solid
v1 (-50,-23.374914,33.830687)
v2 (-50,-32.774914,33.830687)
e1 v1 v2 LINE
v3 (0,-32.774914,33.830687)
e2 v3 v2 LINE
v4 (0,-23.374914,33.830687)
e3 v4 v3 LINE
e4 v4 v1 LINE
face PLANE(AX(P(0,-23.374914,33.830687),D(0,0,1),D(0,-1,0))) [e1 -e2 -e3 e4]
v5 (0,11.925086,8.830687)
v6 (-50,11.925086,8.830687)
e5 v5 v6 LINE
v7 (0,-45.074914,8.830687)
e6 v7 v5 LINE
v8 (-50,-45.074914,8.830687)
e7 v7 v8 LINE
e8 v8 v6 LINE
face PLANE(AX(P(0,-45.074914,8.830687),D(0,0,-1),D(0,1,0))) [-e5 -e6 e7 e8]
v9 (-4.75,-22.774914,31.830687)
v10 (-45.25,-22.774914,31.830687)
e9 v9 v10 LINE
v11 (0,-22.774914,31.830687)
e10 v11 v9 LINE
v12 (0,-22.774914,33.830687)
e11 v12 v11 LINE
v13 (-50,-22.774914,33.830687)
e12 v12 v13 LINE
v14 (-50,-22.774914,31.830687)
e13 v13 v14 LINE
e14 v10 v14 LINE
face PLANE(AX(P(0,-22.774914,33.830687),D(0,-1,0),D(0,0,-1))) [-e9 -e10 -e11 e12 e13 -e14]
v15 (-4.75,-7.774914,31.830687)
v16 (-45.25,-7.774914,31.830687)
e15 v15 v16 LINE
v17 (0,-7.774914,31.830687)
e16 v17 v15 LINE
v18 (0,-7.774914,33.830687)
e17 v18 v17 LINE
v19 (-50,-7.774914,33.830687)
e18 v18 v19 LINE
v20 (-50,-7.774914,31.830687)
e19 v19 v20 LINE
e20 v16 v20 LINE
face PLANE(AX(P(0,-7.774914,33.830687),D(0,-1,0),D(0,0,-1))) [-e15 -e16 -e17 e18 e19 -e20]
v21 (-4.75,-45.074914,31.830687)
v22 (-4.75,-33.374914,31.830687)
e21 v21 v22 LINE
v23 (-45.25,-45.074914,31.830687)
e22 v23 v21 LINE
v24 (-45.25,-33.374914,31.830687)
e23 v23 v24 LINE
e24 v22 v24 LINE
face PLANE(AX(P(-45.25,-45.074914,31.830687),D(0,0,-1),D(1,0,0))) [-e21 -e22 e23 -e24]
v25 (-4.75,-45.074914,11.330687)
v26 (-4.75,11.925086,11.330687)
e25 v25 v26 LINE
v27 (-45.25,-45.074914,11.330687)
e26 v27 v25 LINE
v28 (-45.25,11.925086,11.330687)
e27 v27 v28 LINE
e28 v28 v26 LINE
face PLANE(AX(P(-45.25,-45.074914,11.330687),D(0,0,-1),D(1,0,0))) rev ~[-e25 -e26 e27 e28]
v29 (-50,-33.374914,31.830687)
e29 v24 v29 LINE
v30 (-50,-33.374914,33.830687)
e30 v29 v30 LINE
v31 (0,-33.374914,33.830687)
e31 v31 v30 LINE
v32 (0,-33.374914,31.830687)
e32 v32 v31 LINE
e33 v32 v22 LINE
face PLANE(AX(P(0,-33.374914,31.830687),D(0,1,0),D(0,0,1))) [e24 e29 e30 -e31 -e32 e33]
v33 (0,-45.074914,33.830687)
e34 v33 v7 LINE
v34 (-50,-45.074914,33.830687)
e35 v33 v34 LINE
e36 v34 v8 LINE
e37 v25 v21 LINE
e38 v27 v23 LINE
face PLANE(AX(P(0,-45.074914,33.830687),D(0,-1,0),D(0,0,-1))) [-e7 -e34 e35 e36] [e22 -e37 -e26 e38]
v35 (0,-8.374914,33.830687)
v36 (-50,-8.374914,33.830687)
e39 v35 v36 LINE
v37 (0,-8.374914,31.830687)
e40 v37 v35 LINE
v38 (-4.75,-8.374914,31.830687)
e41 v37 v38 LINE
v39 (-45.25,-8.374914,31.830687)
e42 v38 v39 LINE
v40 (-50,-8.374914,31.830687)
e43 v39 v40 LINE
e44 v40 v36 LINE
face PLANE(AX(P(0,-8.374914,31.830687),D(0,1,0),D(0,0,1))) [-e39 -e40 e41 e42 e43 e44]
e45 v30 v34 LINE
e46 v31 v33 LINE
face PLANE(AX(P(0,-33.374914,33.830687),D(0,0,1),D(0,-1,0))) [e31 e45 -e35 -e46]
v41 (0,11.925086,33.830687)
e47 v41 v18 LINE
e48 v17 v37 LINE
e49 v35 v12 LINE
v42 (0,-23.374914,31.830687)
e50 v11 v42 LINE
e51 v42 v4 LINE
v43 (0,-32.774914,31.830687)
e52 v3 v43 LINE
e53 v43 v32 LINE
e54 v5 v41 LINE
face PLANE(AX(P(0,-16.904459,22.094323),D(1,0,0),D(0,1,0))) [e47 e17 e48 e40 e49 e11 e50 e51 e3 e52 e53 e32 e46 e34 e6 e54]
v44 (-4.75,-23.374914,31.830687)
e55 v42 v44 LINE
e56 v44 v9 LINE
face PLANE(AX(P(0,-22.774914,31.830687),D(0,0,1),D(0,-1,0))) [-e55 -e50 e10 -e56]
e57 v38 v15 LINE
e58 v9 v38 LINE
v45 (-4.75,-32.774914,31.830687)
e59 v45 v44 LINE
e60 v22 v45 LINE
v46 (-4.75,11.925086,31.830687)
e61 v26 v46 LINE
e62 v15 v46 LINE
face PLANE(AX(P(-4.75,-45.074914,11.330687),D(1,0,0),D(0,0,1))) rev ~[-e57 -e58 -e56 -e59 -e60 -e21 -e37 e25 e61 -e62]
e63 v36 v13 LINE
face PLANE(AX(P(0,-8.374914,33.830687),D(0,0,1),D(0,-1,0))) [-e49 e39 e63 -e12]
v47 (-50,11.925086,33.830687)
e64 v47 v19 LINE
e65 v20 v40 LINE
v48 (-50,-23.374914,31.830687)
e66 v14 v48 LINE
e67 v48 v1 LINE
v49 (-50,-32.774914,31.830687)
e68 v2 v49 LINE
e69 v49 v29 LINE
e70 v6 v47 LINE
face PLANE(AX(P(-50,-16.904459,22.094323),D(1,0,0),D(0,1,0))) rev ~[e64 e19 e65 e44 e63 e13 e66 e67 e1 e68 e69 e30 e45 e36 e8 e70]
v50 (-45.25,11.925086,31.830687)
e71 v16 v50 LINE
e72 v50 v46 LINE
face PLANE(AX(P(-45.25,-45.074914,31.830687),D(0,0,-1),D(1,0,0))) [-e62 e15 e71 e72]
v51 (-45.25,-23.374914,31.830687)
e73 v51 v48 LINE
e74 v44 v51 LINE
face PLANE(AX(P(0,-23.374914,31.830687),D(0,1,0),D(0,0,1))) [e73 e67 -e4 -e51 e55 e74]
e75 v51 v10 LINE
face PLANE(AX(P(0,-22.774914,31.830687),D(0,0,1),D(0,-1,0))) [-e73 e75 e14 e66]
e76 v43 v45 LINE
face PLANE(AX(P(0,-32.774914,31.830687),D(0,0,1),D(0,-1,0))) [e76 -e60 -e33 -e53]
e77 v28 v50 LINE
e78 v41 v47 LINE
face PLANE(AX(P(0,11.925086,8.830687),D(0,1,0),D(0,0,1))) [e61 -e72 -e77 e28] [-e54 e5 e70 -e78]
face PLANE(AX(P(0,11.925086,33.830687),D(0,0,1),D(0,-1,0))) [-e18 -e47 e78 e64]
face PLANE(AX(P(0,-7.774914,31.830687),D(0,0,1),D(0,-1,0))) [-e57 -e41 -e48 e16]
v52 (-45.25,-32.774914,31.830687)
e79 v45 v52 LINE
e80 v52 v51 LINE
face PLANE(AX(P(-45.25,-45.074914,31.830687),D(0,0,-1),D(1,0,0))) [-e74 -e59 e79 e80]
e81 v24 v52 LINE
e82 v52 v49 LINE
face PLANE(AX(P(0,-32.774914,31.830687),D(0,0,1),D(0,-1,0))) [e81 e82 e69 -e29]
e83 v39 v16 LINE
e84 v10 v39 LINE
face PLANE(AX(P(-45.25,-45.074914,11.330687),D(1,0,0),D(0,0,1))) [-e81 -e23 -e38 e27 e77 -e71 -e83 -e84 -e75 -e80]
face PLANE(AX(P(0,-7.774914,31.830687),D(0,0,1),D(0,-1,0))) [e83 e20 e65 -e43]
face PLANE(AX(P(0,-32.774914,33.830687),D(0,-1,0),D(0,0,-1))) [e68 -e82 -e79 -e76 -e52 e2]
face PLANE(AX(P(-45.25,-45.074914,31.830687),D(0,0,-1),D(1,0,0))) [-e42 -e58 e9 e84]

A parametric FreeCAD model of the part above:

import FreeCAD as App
import Part
import Sketcher

doc = App.newDocument("Part")
body = doc.addObject("PartDesign::Body", "Body")

sketch1 = doc.addObject("Sketcher::SketchObject", "Sketch")
body.addObject(sketch1)
sketch1.AttachmentSupport = (doc.YZ_Plane, [""])
sketch1.MapMode = "FlatFace"
sketch1.addGeometry([
    Part.LineSegment(App.Vector(-33.4, 31.8, 0), App.Vector(-33.4, 33.8, 0)),
    Part.LineSegment(App.Vector(-33.4, 33.8, 0), App.Vector(-45.1, 33.8, 0)),
    Part.LineSegment(App.Vector(-45.1, 33.8, 0), App.Vector(-45.1, 8.8, 0)),
    Part.LineSegment(App.Vector(-45.1, 8.8, 0), App.Vector(11.9, 8.8, 0)),
    Part.LineSegment(App.Vector(11.9, 8.8, 0), App.Vector(11.9, 33.8, 0)),
    Part.LineSegment(App.Vector(11.9, 33.8, 0), App.Vector(-7.8, 33.8, 0)),
    Part.LineSegment(App.Vector(-7.8, 33.8, 0), App.Vector(-7.8, 31.8, 0)),
    Part.LineSegment(App.Vector(-7.8, 31.8, 0), App.Vector(-8.4, 31.8, 0)),
    Part.LineSegment(App.Vector(-8.4, 31.8, 0), App.Vector(-8.4, 33.8, 0)),
    Part.LineSegment(App.Vector(-8.4, 33.8, 0), App.Vector(-22.8, 33.8, 0)),
    Part.LineSegment(App.Vector(-22.8, 33.8, 0), App.Vector(-22.8, 31.8, 0)),
    Part.LineSegment(App.Vector(-22.8, 31.8, 0), App.Vector(-23.4, 31.8, 0)),
    Part.LineSegment(App.Vector(-23.4, 31.8, 0), App.Vector(-23.4, 33.8, 0)),
    Part.LineSegment(App.Vector(-23.4, 33.8, 0), App.Vector(-32.8, 33.8, 0)),
    Part.LineSegment(App.Vector(-32.8, 33.8, 0), App.Vector(-32.8, 31.8, 0)),
    Part.LineSegment(App.Vector(-32.8, 31.8, 0), App.Vector(-33.4, 31.8, 0)),
], False)
sketch1.addConstraint([
    Sketcher.Constraint("Coincident", 0, 2, 1, 1),
    Sketcher.Constraint("Coincident", 1, 2, 2, 1),
    Sketcher.Constraint("Coincident", 2, 2, 3, 1),
    Sketcher.Constraint("Coincident", 3, 2, 4, 1),
    Sketcher.Constraint("Coincident", 4, 2, 5, 1),
    Sketcher.Constraint("Coincident", 5, 2, 6, 1),
    Sketcher.Constraint("Coincident", 6, 2, 7, 1),
    Sketcher.Constraint("Coincident", 7, 2, 8, 1),
    Sketcher.Constraint("Coincident", 8, 2, 9, 1),
    Sketcher.Constraint("Coincident", 9, 2, 10, 1),
    Sketcher.Constraint("Coincident", 10, 2, 11, 1),
    Sketcher.Constraint("Coincident", 11, 2, 12, 1),
    Sketcher.Constraint("Coincident", 12, 2, 13, 1),
    Sketcher.Constraint("Coincident", 13, 2, 14, 1),
    Sketcher.Constraint("Coincident", 14, 2, 15, 1),
    Sketcher.Constraint("Coincident", 15, 2, 0, 1),
    Sketcher.Constraint("Vertical", 0),
    Sketcher.Constraint("Horizontal", 1),
    Sketcher.Constraint("Vertical", 2),
    Sketcher.Constraint("Horizontal", 3),
    Sketcher.Constraint("Vertical", 4),
    Sketcher.Constraint("Horizontal", 5),
    Sketcher.Constraint("Vertical", 6),
    Sketcher.Constraint("Horizontal", 7),
    Sketcher.Constraint("Vertical", 8),
    Sketcher.Constraint("Horizontal", 9),
    Sketcher.Constraint("Vertical", 10),
    Sketcher.Constraint("Horizontal", 11),
    Sketcher.Constraint("Vertical", 12),
    Sketcher.Constraint("Horizontal", 13),
    Sketcher.Constraint("Vertical", 14),
    Sketcher.Constraint("Horizontal", 15),
    Sketcher.Constraint("Horizontal", 1, 2, 4, 2),
    Sketcher.Constraint("Horizontal", 5, 2, 8, 2),
    Sketcher.Constraint("Horizontal", 7, 2, 10, 2),
    Sketcher.Constraint("Horizontal", 9, 2, 12, 2),
    Sketcher.Constraint("Horizontal", 11, 2, 14, 2),
    Sketcher.Constraint("Equal", 7, 11),
    Sketcher.Constraint("Equal", 11, 15),
    Sketcher.Constraint("DistanceX", 3, 1, 3, 2, 57.0),
    Sketcher.Constraint("DistanceY", 0, 1, 0, 2, 2.0),
    Sketcher.Constraint("DistanceY", 2, 2, 2, 1, 25.0),
    Sketcher.Constraint("DistanceX", 1, 2, 1, 1, 11.7),
    Sketcher.Constraint("DistanceX", 5, 2, 5, 1, 19.7),
    Sketcher.Constraint("DistanceX", 7, 2, 7, 1, 0.6),
    Sketcher.Constraint("DistanceX", 9, 2, 9, 1, 14.4),
    Sketcher.Constraint("DistanceX", 0, 2, -1, 1, 33.374914),
    Sketcher.Constraint("DistanceY", -1, 1, 0, 2, 33.830687),
])
pad1 = doc.addObject("PartDesign::Pad", "Pad")
body.addObject(pad1)
pad1.Profile = sketch1
pad1.Length = 50
pad1.Reversed = True

sketch2 = doc.addObject("Sketcher::SketchObject", "Sketch001")
body.addObject(sketch2)
sketch2.AttachmentSupport = (doc.XZ_Plane, [""])
sketch2.MapMode = "FlatFace"
sketch2.AttachmentOffset = App.Placement(App.Vector(0, 0, 45.074914), App.Rotation())
sketch2.addGeometry([
    Part.LineSegment(App.Vector(-45, 32, 0), App.Vector(-45, 11, 0)),
    Part.LineSegment(App.Vector(-45, 11, 0), App.Vector(-5, 11, 0)),
    Part.LineSegment(App.Vector(-5, 11, 0), App.Vector(-5, 32, 0)),
    Part.LineSegment(App.Vector(-5, 32, 0), App.Vector(-45, 32, 0)),
], False)
sketch2.addConstraint([
    Sketcher.Constraint("Coincident", 0, 2, 1, 1),
    Sketcher.Constraint("Coincident", 1, 2, 2, 1),
    Sketcher.Constraint("Coincident", 2, 2, 3, 1),
    Sketcher.Constraint("Coincident", 3, 2, 0, 1),
    Sketcher.Constraint("Vertical", 0),
    Sketcher.Constraint("Horizontal", 1),
    Sketcher.Constraint("Vertical", 2),
    Sketcher.Constraint("Horizontal", 3),
    Sketcher.Constraint("DistanceX", 1, 1, 1, 2, 40.5),
    Sketcher.Constraint("DistanceY", 0, 2, 0, 1, 20.5),
    Sketcher.Constraint("DistanceX", 0, 2, -1, 1, 45.25),
    Sketcher.Constraint("DistanceY", -1, 1, 0, 2, 11.330687),
])
pocket1 = doc.addObject("PartDesign::Pocket", "Pocket")
body.addObject(pocket1)
pocket1.Profile = sketch2
pocket1.Type = "ThroughAll"

doc.recompute()
